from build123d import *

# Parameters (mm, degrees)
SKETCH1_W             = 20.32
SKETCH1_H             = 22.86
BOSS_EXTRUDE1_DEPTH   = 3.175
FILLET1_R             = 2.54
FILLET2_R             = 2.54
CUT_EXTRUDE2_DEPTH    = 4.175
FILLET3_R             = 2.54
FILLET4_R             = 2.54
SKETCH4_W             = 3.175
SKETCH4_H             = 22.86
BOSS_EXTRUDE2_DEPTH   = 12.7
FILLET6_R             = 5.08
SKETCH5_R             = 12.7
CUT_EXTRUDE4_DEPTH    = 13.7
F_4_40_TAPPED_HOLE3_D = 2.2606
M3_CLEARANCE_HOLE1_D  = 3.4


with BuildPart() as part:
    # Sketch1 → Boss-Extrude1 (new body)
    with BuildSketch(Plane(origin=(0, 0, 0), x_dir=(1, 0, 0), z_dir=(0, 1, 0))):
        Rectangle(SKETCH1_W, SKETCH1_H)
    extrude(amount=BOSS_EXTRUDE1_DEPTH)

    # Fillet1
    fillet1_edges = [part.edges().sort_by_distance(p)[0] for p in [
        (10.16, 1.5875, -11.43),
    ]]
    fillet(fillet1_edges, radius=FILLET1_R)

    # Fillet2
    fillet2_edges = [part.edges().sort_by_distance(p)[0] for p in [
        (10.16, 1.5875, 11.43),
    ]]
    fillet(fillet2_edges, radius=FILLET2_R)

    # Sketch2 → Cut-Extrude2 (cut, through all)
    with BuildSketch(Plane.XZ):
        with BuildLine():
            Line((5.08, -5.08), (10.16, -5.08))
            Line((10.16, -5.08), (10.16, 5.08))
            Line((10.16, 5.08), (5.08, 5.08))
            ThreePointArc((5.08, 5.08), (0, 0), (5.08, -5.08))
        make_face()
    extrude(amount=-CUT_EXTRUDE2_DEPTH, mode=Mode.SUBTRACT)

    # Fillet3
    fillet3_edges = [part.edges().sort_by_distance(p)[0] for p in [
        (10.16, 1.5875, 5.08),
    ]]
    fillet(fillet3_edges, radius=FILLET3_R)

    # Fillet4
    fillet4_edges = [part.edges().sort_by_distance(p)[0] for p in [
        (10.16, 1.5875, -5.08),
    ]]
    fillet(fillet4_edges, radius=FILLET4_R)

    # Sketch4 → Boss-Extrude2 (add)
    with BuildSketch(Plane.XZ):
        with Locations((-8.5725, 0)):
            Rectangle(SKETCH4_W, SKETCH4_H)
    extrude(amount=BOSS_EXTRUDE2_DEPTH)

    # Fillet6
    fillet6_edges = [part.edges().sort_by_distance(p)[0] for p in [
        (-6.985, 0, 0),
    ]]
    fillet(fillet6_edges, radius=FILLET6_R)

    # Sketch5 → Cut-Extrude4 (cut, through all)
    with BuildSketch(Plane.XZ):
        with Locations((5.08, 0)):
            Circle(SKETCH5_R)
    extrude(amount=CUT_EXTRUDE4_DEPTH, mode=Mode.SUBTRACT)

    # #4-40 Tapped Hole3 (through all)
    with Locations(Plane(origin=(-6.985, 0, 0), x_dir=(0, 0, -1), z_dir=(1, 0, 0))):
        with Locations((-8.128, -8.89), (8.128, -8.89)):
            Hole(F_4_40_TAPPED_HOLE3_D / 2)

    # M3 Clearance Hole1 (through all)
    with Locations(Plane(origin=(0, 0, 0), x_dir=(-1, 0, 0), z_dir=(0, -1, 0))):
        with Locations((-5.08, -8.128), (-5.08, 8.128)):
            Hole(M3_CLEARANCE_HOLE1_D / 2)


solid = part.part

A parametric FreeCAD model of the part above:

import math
import FreeCAD as App
import Part
import Sketcher
Q = App.Units.Quantity


def edges_at(feature, points):
    """Names of the edges that pass closest to the given points."""
    edges = feature.Shape.Edges
    near = lambda p: min(range(len(edges)), key=lambda i: edges[i].distToShape(Part.Vertex(*p))[0])
    return sorted({f"Edge{near(p) + 1}" for p in points})


def add_polygon(sketch, points):
    """Adds a closed chain of lines whose ends are joined by coincident constraints."""
    first, n = sketch.GeometryCount, len(points)
    for a, b in zip(points, points[1:] + points[:1]):
        sketch.addGeometry(Part.LineSegment(App.Vector(*a, 0), App.Vector(*b, 0)), False)
    for i in range(n):
        sketch.addConstraint(Sketcher.Constraint("Coincident", first + i, 2, first + (i + 1) % n, 1))

doc = App.newDocument("Part")
params = doc.addObject("Spreadsheet::Sheet", "Params")
for row, (alias, value) in enumerate([
    ("sketch1_width", "0.8 in"),
    ("sketch1_height", "0.9 in"),
    ("pad1_length", "0.125 in"),
    ("fillet_radius", "0.1 in"),
    ("fillet2_radius", "0.1 in"),
    ("sketch2_radius", "0.2 in"),
    ("sketch2_width", "0.2 in"),
    ("fillet3_radius", "0.1 in"),
    ("fillet4_radius", "0.1 in"),
    ("sketch3_height", "0.9 in"),
    ("sketch3_width", "0.125 in"),
    ("pad2_length", "0.5 in"),
    ("fillet5_radius", "0.2 in"),
    ("sketch4_diameter", "1 in"),
    ("sketch5_diameter", "0.089 in"),
    ("hole_diameter", "0.089 in"),
    ("hole2_diameter", "3.4 mm"),
], start=1):
    params.set(f"A{row}", alias)
    params.set(f"B{row}", "=" + value)
    params.setAlias(f"B{row}", alias)

body = doc.addObject("PartDesign::Body", "Body")

sketch1 = body.newObject("Sketcher::SketchObject", "Sketch")
sketch1.AttachmentSupport = (doc.getObject("XZ_Plane"), [""])
sketch1.MapMode = "FlatFace"
add_polygon(sketch1, [(-10.16, -11.43), (-10.16, 11.43), (10.16, 11.43), (10.16, -11.43)])
sketch1.addConstraint(Sketcher.Constraint("Vertical", 0))
sketch1.addConstraint(Sketcher.Constraint("Horizontal", 1))
sketch1.addConstraint(Sketcher.Constraint("Vertical", 2))
sketch1.addConstraint(Sketcher.Constraint("Horizontal", 3))
sketch1.addConstraint(Sketcher.Constraint("Symmetric", 0, 2, 2, 2, -1, 1))
sketch1.addConstraint(Sketcher.Constraint("DistanceX", 1, 1, 1, 2, Q("0.8 in")))
sketch1.addConstraint(Sketcher.Constraint("DistanceY", 0, 1, 0, 2, Q("0.9 in")))
sketch1.setExpression("Constraints[9]", "Params.sketch1_width")
sketch1.setExpression("Constraints[10]", "Params.sketch1_height")
pad1 = body.newObject("PartDesign::Pad", "Pad")
pad1.Profile = sketch1
pad1.setExpression("Length", "Params.pad1_length")
pad1.Reversed = True
doc.recompute()

fillet = body.newObject("PartDesign::Fillet", "Fillet")
fillet.Base = (pad1, edges_at(pad1, [(10.16, 1.587, -11.43)]))
fillet.setExpression("Radius", "Params.fillet_radius")
doc.recompute()

fillet2 = body.newObject("PartDesign::Fillet", "Fillet001")
fillet2.Base = (fillet, edges_at(fillet, [(10.16, 1.587, 11.43)]))
fillet2.setExpression("Radius", "Params.fillet2_radius")

sketch2 = body.newObject("Sketcher::SketchObject", "Sketch001")
sketch2.AttachmentSupport = (doc.getObject("XZ_Plane"), [""])
sketch2.MapMode = "FlatFace"
sketch2.addGeometry(Part.LineSegment(App.Vector(5.08, -5.08, 0), App.Vector(10.16, -5.08, 0)), False)
sketch2.addGeometry(Part.LineSegment(App.Vector(10.16, -5.08, 0), App.Vector(10.16, 5.08, 0)), False)
sketch2.addGeometry(Part.LineSegment(App.Vector(10.16, 5.08, 0), App.Vector(5.08, 5.08, 0)), False)
sketch2.addGeometry(Part.ArcOfCircle(Part.Circle(App.Vector(5.08, 0, 0), App.Vector(0, 0, 1), 5.08), math.radians(90), math.radians(270)), False)
sketch2.addConstraint(Sketcher.Constraint("Coincident", 0, 2, 1, 1))
sketch2.addConstraint(Sketcher.Constraint("Coincident", 1, 2, 2, 1))
sketch2.addConstraint(Sketcher.Constraint("Tangent", 2, 2, 3, 1))
sketch2.addConstraint(Sketcher.Constraint("Tangent", 3, 2, 0, 1))
sketch2.addConstraint(Sketcher.Constraint("Horizontal", 0))
sketch2.addConstraint(Sketcher.Constraint("Vertical", 1))
sketch2.addConstraint(Sketcher.Constraint("Horizontal", 2))
sketch2.addConstraint(Sketcher.Constraint("PointOnObject", 3, 3, -1))
sketch2.addConstraint(Sketcher.Constraint("Radius", 3, Q("0.2 in")))
sketch2.addConstraint(Sketcher.Constraint("DistanceX", 0, 1, 0, 2, Q("0.2 in")))
sketch2.addConstraint(Sketcher.Constraint("DistanceX", -1, 1, 3, 3, Q("0.2 in")))
sketch2.setExpression("Constraints[8]", "Params.sketch2_radius")
sketch2.setExpression("Constraints[9]", "Params.sketch2_width")
pocket1 = body.newObject("PartDesign::Pocket", "Pocket")
pocket1.Profile = sketch2
pocket1.Type = "ThroughAll"
doc.recompute()

fillet3 = body.newObject("PartDesign::Fillet", "Fillet002")
fillet3.Base = (pocket1, edges_at(pocket1, [(10.16, 1.587, 5.08)]))
fillet3.setExpression("Radius", "Params.fillet3_radius")
doc.recompute()

fillet4 = body.newObject("PartDesign::Fillet", "Fillet003")
fillet4.Base = (fillet3, edges_at(fillet3, [(10.16, 1.587, -5.08)]))
fillet4.setExpression("Radius", "Params.fillet4_radius")

sketch3 = body.newObject("Sketcher::SketchObject", "Sketch002")
sketch3.AttachmentSupport = (doc.getObject("XZ_Plane"), [""])
sketch3.MapMode = "FlatFace"
add_polygon(sketch3, [(-10.16, 11.43), (-10.16, -11.43), (-6.985, -11.43), (-6.985, 11.43)])
sketch3.addConstraint(Sketcher.Constraint("Vertical", 0))
sketch3.addConstraint(Sketcher.Constraint("Horizontal", 1))
sketch3.addConstraint(Sketcher.Constraint("Vertical", 2))
sketch3.addConstraint(Sketcher.Constraint("Horizontal", 3))
sketch3.addConstraint(Sketcher.Constraint("DistanceY", 0, 2, 0, 1, Q("0.9 in")))
sketch3.addConstraint(Sketcher.Constraint("DistanceX", 0, 2, -1, 1, Q("0.4 in")))
sketch3.addConstraint(Sketcher.Constraint("DistanceX", 1, 1, 1, 2, Q("0.125 in")))
sketch3.addConstraint(Sketcher.Constraint("DistanceY", 0, 2, -1, 1, Q("0.45 in")))
sketch3.setExpression("Constraints[8]", "Params.sketch3_height")
sketch3.setExpression("Constraints[10]", "Params.sketch3_width")
pad2 = body.newObject("PartDesign::Pad", "Pad001")
pad2.Profile = sketch3
pad2.setExpression("Length", "Params.pad2_length")
doc.recompute()

fillet5 = body.newObject("PartDesign::Fillet", "Fillet004")
fillet5.Base = (pad2, edges_at(pad2, [(-6.985, 0, 0)]))
fillet5.setExpression("Radius", "Params.fillet5_radius")

sketch4 = body.newObject("Sketcher::SketchObject", "Sketch003")
sketch4.AttachmentSupport = (doc.getObject("XZ_Plane"), [""])
sketch4.MapMode = "FlatFace"
sketch4.addGeometry(Part.Circle(App.Vector(5.08, 0, 0), App.Vector(0, 0, 1), 12.7), False)
sketch4.addConstraint(Sketcher.Constraint("PointOnObject", 0, 3, -1))
sketch4.addConstraint(Sketcher.Constraint("Diameter", 0, Q("1 in")))
sketch4.addConstraint(Sketcher.Constraint("DistanceX", -1, 1, 0, 3, Q("0.2 in")))
sketch4.setExpression("Constraints[1]", "Params.sketch4_diameter")
pocket2 = body.newObject("PartDesign::Pocket", "Pocket001")
pocket2.Profile = sketch4
pocket2.Type = "ThroughAll"
pocket2.Reversed = True

sketch5 = body.newObject("Sketcher::SketchObject", "Sketch004")
sketch5.AttachmentSupport = (doc.getObject("YZ_Plane"), [""])
sketch5.MapMode = "FlatFace"
sketch5.AttachmentOffset = App.Placement(App.Vector(0, 0, -0.275 * 25.4), App.Rotation())
sketch5.addGeometry(Part.Circle(App.Vector(-8.89, 8.128, 0), App.Vector(0, 0, 1), 1.1303), False)
sketch5.addGeometry(Part.Circle(App.Vector(-8.89, -8.128, 0), App.Vector(0, 0, 1), 1.1303), False)
sketch5.addConstraint(Sketcher.Constraint("Equal", 0, 1))
sketch5.addConstraint(Sketcher.Constraint("Symmetric", 0, 3, 1, 3, -1))
sketch5.addConstraint(Sketcher.Constraint("Diameter", 0, Q("0.089 in")))
sketch5.addConstraint(Sketcher.Constraint("DistanceX", 0, 3, -1, 1, Q("0.35 in")))
sketch5.addConstraint(Sketcher.Constraint("DistanceY", -1, 1, 0, 3, Q("0.32 in")))
sketch5.setExpression("Constraints[2]", "Params.sketch5_diameter")
doc.recompute()
hole = body.newObject("PartDesign::Hole", "Hole")
hole.Profile = sketch5
hole.ThreadType = "None"
hole.setExpression("Diameter", "Params.hole_diameter")
hole.DepthType = "ThroughAll"

sketch6 = body.newObject("Sketcher::SketchObject", "Sketch005")
sketch6.AttachmentSupport = (doc.getObject("XZ_Plane"), [""])
sketch6.MapMode = "FlatFace"
sketch6.addGeometry(Part.Circle(App.Vector(5.08, 8.128, 0), App.Vector(0, 0, 1), 1.7), False)
sketch6.addGeometry(Part.Circle(App.Vector(5.08, -8.128, 0), App.Vector(0, 0, 1), 1.7), False)
sketch6.addConstraint(Sketcher.Constraint("Equal", 0, 1))
sketch6.addConstraint(Sketcher.Constraint("Symmetric", 0, 3, 1, 3, -1))
sketch6.addConstraint(Sketcher.Constraint("DistanceX", -1, 1, 0, 3, Q("0.2 in")))
sketch6.addConstraint(Sketcher.Constraint("Diameter", 0, Q("3.4 mm")))
sketch6.addConstraint(Sketcher.Constraint("DistanceY", -1, 1, 0, 3, Q("0.32 in")))
doc.recompute()
hole2 = body.newObject("PartDesign::Hole", "Hole001")
hole2.Profile = sketch6
hole2.ThreadType = "None"
hole2.setExpression("Diameter", "Params.hole2_diameter")
hole2.DepthType = "ThroughAll"

doc.recompute()
